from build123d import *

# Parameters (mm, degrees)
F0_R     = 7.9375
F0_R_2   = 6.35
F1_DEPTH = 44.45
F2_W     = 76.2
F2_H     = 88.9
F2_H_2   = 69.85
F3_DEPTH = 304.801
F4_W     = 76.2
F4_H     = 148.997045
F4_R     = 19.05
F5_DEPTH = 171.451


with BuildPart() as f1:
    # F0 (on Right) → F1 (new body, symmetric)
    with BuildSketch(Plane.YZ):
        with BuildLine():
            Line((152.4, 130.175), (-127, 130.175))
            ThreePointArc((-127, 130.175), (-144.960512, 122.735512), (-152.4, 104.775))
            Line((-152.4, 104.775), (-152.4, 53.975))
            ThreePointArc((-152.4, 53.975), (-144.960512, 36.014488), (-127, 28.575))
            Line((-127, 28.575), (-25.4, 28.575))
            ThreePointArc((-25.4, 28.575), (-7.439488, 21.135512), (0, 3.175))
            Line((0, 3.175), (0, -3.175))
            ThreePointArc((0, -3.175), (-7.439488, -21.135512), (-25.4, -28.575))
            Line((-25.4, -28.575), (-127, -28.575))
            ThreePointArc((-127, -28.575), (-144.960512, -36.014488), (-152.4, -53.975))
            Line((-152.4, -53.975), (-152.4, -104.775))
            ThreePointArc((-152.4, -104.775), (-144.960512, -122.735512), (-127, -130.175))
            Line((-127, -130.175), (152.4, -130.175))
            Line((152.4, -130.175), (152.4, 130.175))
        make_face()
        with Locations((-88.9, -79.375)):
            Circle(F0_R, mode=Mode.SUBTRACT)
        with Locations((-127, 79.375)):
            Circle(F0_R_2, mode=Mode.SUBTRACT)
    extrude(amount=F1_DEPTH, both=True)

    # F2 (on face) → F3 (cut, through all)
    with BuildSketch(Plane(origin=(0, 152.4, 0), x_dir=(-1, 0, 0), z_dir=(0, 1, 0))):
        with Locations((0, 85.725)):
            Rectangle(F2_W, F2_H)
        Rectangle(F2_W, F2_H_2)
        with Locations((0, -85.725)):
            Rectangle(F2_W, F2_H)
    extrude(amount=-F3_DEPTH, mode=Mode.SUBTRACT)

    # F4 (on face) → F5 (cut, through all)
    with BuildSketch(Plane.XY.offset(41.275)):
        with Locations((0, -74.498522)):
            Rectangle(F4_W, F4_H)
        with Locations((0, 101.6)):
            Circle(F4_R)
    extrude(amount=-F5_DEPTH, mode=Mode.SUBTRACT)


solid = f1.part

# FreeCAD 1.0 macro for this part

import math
import FreeCAD as App
import Part
import Sketcher
Q = App.Units.Quantity


def add_polygon(sketch, points):
    """Adds a closed chain of lines whose ends are joined by coincident constraints."""
    first, n = sketch.GeometryCount, len(points)
    for a, b in zip(points, points[1:] + points[:1]):
        sketch.addGeometry(Part.LineSegment(App.Vector(*a, 0), App.Vector(*b, 0)), False)
    for i in range(n):
        sketch.addConstraint(Sketcher.Constraint("Coincident", first + i, 2, first + (i + 1) % n, 1))

doc = App.newDocument("Part")
params = doc.addObject("Spreadsheet::Sheet", "Params")
for row, (alias, value) in enumerate([
    ("sketch1_radius", "1 in"),
    ("sketch1_diameter", "0.5 in"),
    ("sketch1_width", "11 in"),
    ("sketch1_width2", "4 in"),
    ("sketch1_height", "2 in"),
    ("pad1_length", "3.5 in"),
    ("sketch2_width", "3 in"),
    ("sketch2_height", "3.5 in"),
    ("sketch2_height2", "2.75 in"),
    ("sketch3_diameter", "1.5 in"),
    ("sketch3_width", "3 in"),
], start=1):
    params.set(f"A{row}", alias)
    params.set(f"B{row}", "=" + value)
    params.setAlias(f"B{row}", alias)

body = doc.addObject("PartDesign::Body", "Body")

# Sketch on YZ plane
sketch1 = body.newObject("Sketcher::SketchObject", "Sketch")
sketch1.AttachmentSupport = (doc.getObject("YZ_Plane"), [""])
sketch1.MapMode = "FlatFace"
sketch1.addGeometry([
    Part.LineSegment(App.Vector(152, 130, 0), App.Vector(-127, 130, 0)),  # 0
    Part.ArcOfCircle(Part.Circle(App.Vector(-127, 105, 0), App.Vector(0, 0, 1), 25), math.radians(90), math.radians(180)),  # 1
    Part.LineSegment(App.Vector(-152, 105, 0), App.Vector(-152, 54, 0)),  # 2
    Part.ArcOfCircle(Part.Circle(App.Vector(-127, 54, 0), App.Vector(0, 0, 1), 25), math.radians(-180), math.radians(-90)),  # 3
    Part.LineSegment(App.Vector(-127, 29, 0), App.Vector(-25, 29, 0)),  # 4
    Part.ArcOfCircle(Part.Circle(App.Vector(-25, 3, 0), App.Vector(0, 0, 1), 25), math.radians(0), math.radians(90)),  # 5
    Part.LineSegment(App.Vector(0, 3, 0), App.Vector(0, -3, 0)),  # 6
    Part.ArcOfCircle(Part.Circle(App.Vector(-25, -3, 0), App.Vector(0, 0, 1), 25), math.radians(-90), math.radians(0)),  # 7
    Part.LineSegment(App.Vector(-25, -29, 0), App.Vector(-127, -29, 0)),  # 8
    Part.ArcOfCircle(Part.Circle(App.Vector(-127, -54, 0), App.Vector(0, 0, 1), 25), math.radians(90), math.radians(180)),  # 9
    Part.LineSegment(App.Vector(-152, -54, 0), App.Vector(-152, -105, 0)),  # 10
    Part.ArcOfCircle(Part.Circle(App.Vector(-127, -105, 0), App.Vector(0, 0, 1), 25), math.radians(-180), math.radians(-90)),  # 11
    Part.LineSegment(App.Vector(-127, -130, 0), App.Vector(152, -130, 0)),  # 12
    Part.LineSegment(App.Vector(152, -130, 0), App.Vector(152, 130, 0)),  # 13
    Part.Circle(App.Vector(-89, -79, 0), App.Vector(0, 0, 1), 8),  # 14
    Part.Circle(App.Vector(-127, 79, 0), App.Vector(0, 0, 1), 6),  # 15
], False)
sketch1.addConstraint([
    Sketcher.Constraint("Tangent", 0, 2, 1, 1),
    Sketcher.Constraint("Tangent", 1, 2, 2, 1),
    Sketcher.Constraint("Tangent", 2, 2, 3, 1),
    Sketcher.Constraint("Tangent", 3, 2, 4, 1),
    Sketcher.Constraint("Tangent", 4, 2, 5, 2),
    Sketcher.Constraint("Tangent", 5, 1, 6, 1),
    Sketcher.Constraint("Tangent", 6, 2, 7, 2),
    Sketcher.Constraint("Tangent", 7, 1, 8, 1),
    Sketcher.Constraint("Tangent", 8, 2, 9, 1),
    Sketcher.Constraint("Tangent", 9, 2, 10, 1),
    Sketcher.Constraint("Tangent", 10, 2, 11, 1),
    Sketcher.Constraint("Tangent", 11, 2, 12, 1),
    Sketcher.Constraint("Coincident", 12, 2, 13, 1),
    Sketcher.Constraint("Coincident", 13, 2, 0, 1),
    Sketcher.Constraint("Horizontal", 0),
    Sketcher.Constraint("Vertical", 2),
    Sketcher.Constraint("Horizontal", 4),
    Sketcher.Constraint("Vertical", 6),
    Sketcher.Constraint("Horizontal", 8),
    Sketcher.Constraint("Vertical", 10),
    Sketcher.Constraint("Horizontal", 12),
    Sketcher.Constraint("Vertical", 13),
    Sketcher.Constraint("Equal", 1, 3),
    Sketcher.Constraint("Equal", 3, 5),
    Sketcher.Constraint("Equal", 5, 7),
    Sketcher.Constraint("Equal", 7, 9),
    Sketcher.Constraint("Equal", 9, 11),
    Sketcher.Constraint("Symmetric", 5, 1, 6, 2, -1, 1),
    Sketcher.Constraint("Symmetric", 1, 3, 11, 3, -1),
    Sketcher.Constraint("Vertical", 11, 3, 15, 3),
    Sketcher.Constraint("Radius", 1, Q("1 in")),
    Sketcher.Constraint("Diameter", 15, Q("0.5 in")),
    Sketcher.Constraint("DistanceX", 0, 2, 0, 1, Q("11 in")),
    Sketcher.Constraint("DistanceX", 4, 1, 4, 2, Q("4 in")),
    Sketcher.Constraint("DistanceY", 2, 2, 2, 1, Q("2 in")),
    Sketcher.Constraint("Diameter", 14, Q("0.625 in")),
    Sketcher.Constraint("DistanceY", 14, 3, 9, 3, Q("1 in")),
    Sketcher.Constraint("DistanceY", 15, 3, 1, 3, Q("1 in")),
    Sketcher.Constraint("DistanceY", 6, 2, 6, 1, Q("0.25 in")),
    Sketcher.Constraint("DistanceX", 14, 3, -1, 1, Q("3.5 in")),
])
sketch1.setExpression("Constraints[30]", "Params.sketch1_radius")
sketch1.setExpression("Constraints[31]", "Params.sketch1_diameter")
sketch1.setExpression("Constraints[32]", "Params.sketch1_width")
sketch1.setExpression("Constraints[33]", "Params.sketch1_width2")
sketch1.setExpression("Constraints[34]", "Params.sketch1_height")
pad1 = body.newObject("PartDesign::Pad", "Pad")
pad1.Profile = sketch1
pad1.setExpression("Length", "Params.pad1_length")
pad1.Midplane = True

# Sketch on XZ plane
sketch2 = body.newObject("Sketcher::SketchObject", "Sketch001")
sketch2.AttachmentSupport = (doc.getObject("XZ_Plane"), [""])
sketch2.MapMode = "FlatFace"
sketch2.AttachmentOffset = App.Placement(App.Vector(0, 0, -6 * 25.4), App.Rotation())
add_polygon(sketch2, [(38, 130), (38, 41), (-38, 41), (-38, 130)])  # lines 0-3
add_polygon(sketch2, [(38, 35), (38, -35), (-38, -35), (-38, 35)])  # lines 4-7
add_polygon(sketch2, [(38, -41), (38, -130), (-38, -130), (-38, -41)])  # lines 8-11
sketch2.addConstraint([
    Sketcher.Constraint("Vertical", 0),
    Sketcher.Constraint("Horizontal", 1),
    Sketcher.Constraint("Vertical", 2),
    Sketcher.Constraint("Horizontal", 3),
    Sketcher.Constraint("Vertical", 4),
    Sketcher.Constraint("Horizontal", 5),
    Sketcher.Constraint("Vertical", 6),
    Sketcher.Constraint("Horizontal", 7),
    Sketcher.Constraint("Vertical", 8),
    Sketcher.Constraint("Horizontal", 9),
    Sketcher.Constraint("Vertical", 10),
    Sketcher.Constraint("Horizontal", 11),
    Sketcher.Constraint("Symmetric", 4, 2, 6, 2, -1, 1),
    Sketcher.Constraint("Symmetric", 2, 2, 8, 2, -1, 1),
    Sketcher.Constraint("Symmetric", 0, 2, 10, 2, -1, 1),
    Sketcher.Constraint("Vertical", 3, 2, 4, 2),
    Sketcher.Constraint("Vertical", 2, 2, 5, 2),
    Sketcher.Constraint("DistanceX", 1, 2, 1, 1, Q("3 in")),
    Sketcher.Constraint("DistanceY", 0, 2, 0, 1, Q("3.5 in")),
    Sketcher.Constraint("DistanceY", 4, 2, 0, 2, Q("3 in")),
    Sketcher.Constraint("DistanceY", 4, 2, 4, 1, Q("2.75 in")),
])
sketch2.setExpression("Constraints[29]", "Params.sketch2_width")
sketch2.setExpression("Constraints[30]", "Params.sketch2_height")
sketch2.setExpression("Constraints[32]", "Params.sketch2_height2")
pocket1 = body.newObject("PartDesign::Pocket", "Pocket")
pocket1.Profile = sketch2
pocket1.Type = "ThroughAll"
pocket1.Reversed = True

# Sketch on XY plane
sketch3 = body.newObject("Sketcher::SketchObject", "Sketch002")
sketch3.AttachmentSupport = (doc.getObject("XY_Plane"), [""])
sketch3.MapMode = "FlatFace"
sketch3.AttachmentOffset = App.Placement(App.Vector(0, 0, 1.625 * 25.4), App.Rotation())
add_polygon(sketch3, [(-38, 0), (-38, -149), (38, -149), (38, 0)])  # lines 0-3
sketch3.addGeometry(Part.Circle(App.Vector(0, 102, 0), App.Vector(0, 0, 1), 19), False)  # 4
sketch3.addConstraint([
    Sketcher.Constraint("Vertical", 0),
    Sketcher.Constraint("Horizontal", 1),
    Sketcher.Constraint("Vertical", 2),
    Sketcher.Constraint("Horizontal", 3),
    Sketcher.Constraint("Symmetric", 2, 2, 3, 2, -1, 1),
    Sketcher.Constraint("PointOnObject", 4, 3, -2),
    Sketcher.Constraint("Diameter", 4, Q("1.5 in")),
    Sketcher.Constraint("DistanceX", 1, 1, 1, 2, Q("3 in")),
    Sketcher.Constraint("DistanceY", -1, 1, 4, 3, Q("4 in")),
    Sketcher.Constraint("DistanceY", 0, 2, 0, 1, 148.997045),
])
sketch3.setExpression("Constraints[10]", "Params.sketch3_diameter")
sketch3.setExpression("Constraints[11]", "Params.sketch3_width")
pocket2 = body.newObject("PartDesign::Pocket", "Pocket001")
pocket2.Profile = sketch3
pocket2.Type = "ThroughAll"

doc.recompute()
